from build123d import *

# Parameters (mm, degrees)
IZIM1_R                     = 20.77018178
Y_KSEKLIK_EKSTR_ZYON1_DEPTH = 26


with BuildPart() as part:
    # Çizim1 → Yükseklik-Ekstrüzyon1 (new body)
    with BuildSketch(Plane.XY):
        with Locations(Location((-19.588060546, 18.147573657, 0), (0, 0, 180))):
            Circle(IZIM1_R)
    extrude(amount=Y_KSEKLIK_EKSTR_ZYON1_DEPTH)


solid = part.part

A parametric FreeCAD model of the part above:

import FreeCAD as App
import Part
import Sketcher
Q = App.Units.Quantity

doc = App.newDocument("Part")
body = doc.addObject("PartDesign::Body", "Body")

sketch1 = doc.addObject("Sketcher::SketchObject", "Sketch")
body.addObject(sketch1)
sketch1.AttachmentSupport = (doc.XY_Plane, [""])
sketch1.MapMode = "FlatFace"
sketch1.addGeometry(Part.Circle(App.Vector(-19.588061, 18.147574, 0), App.Vector(0, 0, 1), 20.770182), False)
sketch1.addConstraint([
    Sketcher.Constraint("Diameter", 0, Q("41.540364 mm")),
    Sketcher.Constraint("DistanceX", 0, 3, -1, 1, Q("19.588061 mm")),
    Sketcher.Constraint("DistanceY", -1, 1, 0, 3, Q("18.147574 mm")),
])
pad1 = doc.addObject("PartDesign::Pad", "Pad")
body.addObject(pad1)
pad1.Profile = sketch1
pad1.Length = 26

doc.recompute()
